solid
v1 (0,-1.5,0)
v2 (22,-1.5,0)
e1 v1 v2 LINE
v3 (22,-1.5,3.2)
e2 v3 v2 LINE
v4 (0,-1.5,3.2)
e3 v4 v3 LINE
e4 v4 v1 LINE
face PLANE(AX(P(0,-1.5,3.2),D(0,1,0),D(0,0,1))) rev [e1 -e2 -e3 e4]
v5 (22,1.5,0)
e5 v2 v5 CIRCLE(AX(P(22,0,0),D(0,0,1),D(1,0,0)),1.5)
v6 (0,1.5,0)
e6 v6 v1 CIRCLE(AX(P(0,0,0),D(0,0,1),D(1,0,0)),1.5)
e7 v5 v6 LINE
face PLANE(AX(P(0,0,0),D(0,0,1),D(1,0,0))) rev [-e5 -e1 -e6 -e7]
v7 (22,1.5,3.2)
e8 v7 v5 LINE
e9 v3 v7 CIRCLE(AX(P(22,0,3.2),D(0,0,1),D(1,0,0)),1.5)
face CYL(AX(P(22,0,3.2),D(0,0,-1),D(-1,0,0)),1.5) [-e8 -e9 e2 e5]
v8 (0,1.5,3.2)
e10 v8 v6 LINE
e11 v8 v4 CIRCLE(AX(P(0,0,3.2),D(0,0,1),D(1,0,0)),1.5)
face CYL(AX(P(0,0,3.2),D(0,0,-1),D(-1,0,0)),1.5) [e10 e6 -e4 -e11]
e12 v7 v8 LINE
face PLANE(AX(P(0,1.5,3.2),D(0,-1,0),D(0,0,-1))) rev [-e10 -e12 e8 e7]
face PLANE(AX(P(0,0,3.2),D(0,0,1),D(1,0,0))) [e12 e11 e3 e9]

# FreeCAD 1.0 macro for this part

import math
import FreeCAD as App
import Part
import Sketcher
from FreeCAD import Vector

doc = App.newDocument("Part")
body = doc.addObject("PartDesign::Body", "Body")

# Sketch on XY plane
sketch1 = doc.addObject("Sketcher::SketchObject", "Sketch")
body.addObject(sketch1)
sketch1.AttachmentSupport = (doc.XY_Plane, [""])
sketch1.MapMode = "FlatFace"
sketch1.addGeometry([
    Part.LineSegment(Vector(22, 1.5, 0), Vector(0, 1.5, 0)),
    Part.ArcOfCircle(Part.Circle(Vector(0, 0, 0), Vector(0, 0, 1), 1.5), math.radians(90), math.radians(270)),
    Part.LineSegment(Vector(0, -1.5, 0), Vector(22, -1.5, 0)),
    Part.ArcOfCircle(Part.Circle(Vector(22, 0, 0), Vector(0, 0, 1), 1.5), math.radians(-90), math.radians(90)),
], False)
sketch1.addConstraint([
    Sketcher.Constraint("Tangent", 0, 2, 1, 1),
    Sketcher.Constraint("Tangent", 1, 2, 2, 1),
    Sketcher.Constraint("Tangent", 2, 2, 3, 1),
    Sketcher.Constraint("Tangent", 3, 2, 0, 1),
    Sketcher.Constraint("Horizontal", 0),
    Sketcher.Constraint("Horizontal", 2),
    Sketcher.Constraint("Coincident", 1, 3, -1, 1),
    Sketcher.Constraint("Radius", 1, 1.5),
    Sketcher.Constraint("DistanceX", 0, 2, 0, 1, 22.0),
])
pad1 = doc.addObject("PartDesign::Pad", "Pad")
body.addObject(pad1)
pad1.Profile = sketch1
pad1.Length = 3.2

doc.recompute()
